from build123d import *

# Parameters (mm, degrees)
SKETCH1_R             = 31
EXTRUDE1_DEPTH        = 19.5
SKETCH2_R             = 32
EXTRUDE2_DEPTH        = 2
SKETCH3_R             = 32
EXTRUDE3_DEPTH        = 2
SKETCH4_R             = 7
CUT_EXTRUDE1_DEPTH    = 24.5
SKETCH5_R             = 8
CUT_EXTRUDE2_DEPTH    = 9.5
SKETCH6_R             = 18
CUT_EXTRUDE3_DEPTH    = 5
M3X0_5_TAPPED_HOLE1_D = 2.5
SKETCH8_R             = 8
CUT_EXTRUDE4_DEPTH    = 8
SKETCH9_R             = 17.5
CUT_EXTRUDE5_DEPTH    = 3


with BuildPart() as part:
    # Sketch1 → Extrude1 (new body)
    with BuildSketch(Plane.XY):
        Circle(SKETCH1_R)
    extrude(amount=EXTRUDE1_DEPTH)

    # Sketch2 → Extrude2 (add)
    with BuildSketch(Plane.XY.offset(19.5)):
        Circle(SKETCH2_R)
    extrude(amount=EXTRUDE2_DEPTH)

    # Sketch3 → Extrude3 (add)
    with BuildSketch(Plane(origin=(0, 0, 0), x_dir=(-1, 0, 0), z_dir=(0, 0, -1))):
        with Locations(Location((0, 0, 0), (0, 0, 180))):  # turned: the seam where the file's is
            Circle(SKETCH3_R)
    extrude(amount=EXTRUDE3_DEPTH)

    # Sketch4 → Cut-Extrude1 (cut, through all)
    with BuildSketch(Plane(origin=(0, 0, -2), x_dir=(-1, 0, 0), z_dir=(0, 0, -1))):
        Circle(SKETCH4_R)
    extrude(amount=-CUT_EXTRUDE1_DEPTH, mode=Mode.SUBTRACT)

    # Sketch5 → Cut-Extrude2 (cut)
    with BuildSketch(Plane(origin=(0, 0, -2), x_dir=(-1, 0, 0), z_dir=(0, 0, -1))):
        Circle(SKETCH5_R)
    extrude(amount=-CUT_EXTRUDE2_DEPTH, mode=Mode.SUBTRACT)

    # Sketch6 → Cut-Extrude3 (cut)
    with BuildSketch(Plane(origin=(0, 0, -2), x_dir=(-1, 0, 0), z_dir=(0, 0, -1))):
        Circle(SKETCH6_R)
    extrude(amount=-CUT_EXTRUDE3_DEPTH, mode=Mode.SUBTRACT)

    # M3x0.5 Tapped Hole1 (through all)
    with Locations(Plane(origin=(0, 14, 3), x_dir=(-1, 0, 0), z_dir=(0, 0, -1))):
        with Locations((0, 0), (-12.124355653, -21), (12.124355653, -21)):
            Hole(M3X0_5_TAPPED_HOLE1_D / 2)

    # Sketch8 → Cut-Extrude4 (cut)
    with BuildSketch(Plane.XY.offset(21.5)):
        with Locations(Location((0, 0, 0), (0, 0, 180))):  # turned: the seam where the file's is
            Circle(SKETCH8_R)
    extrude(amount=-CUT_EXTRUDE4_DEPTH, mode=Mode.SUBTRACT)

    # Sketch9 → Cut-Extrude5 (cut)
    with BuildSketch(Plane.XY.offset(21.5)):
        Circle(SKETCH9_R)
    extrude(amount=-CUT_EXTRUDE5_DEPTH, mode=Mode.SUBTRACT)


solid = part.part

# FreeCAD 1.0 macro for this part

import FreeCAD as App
import Part
import Sketcher
Q = App.Units.Quantity

doc = App.newDocument("Part")
body = doc.addObject("PartDesign::Body", "Body")

# Sketch on XY plane
sketch1 = body.newObject("Sketcher::SketchObject", "Sketch")
sketch1.AttachmentSupport = (doc.getObject("XY_Plane"), [""])
sketch1.MapMode = "FlatFace"
sketch1.addGeometry(Part.Circle(App.Vector(0, 0, 0), App.Vector(0, 0, 1), 31), False)
sketch1.addConstraint(Sketcher.Constraint("Coincident", 0, 3, -1, 1))
sketch1.addConstraint(Sketcher.Constraint("Diameter", 0, Q("62 mm")))
pad1 = body.newObject("PartDesign::Pad", "Pad")
pad1.Profile = sketch1
pad1.Length = 19.5

# Sketch on XY plane
sketch2 = body.newObject("Sketcher::SketchObject", "Sketch001")
sketch2.AttachmentSupport = (doc.getObject("XY_Plane"), [""])
sketch2.MapMode = "FlatFace"
sketch2.AttachmentOffset = App.Placement(App.Vector(0, 0, 19.5), App.Rotation())
sketch2.addGeometry(Part.Circle(App.Vector(0, 0, 0), App.Vector(0, 0, 1), 32), False)
sketch2.addConstraint(Sketcher.Constraint("Coincident", 0, 3, -1, 1))
sketch2.addConstraint(Sketcher.Constraint("Diameter", 0, Q("64 mm")))
pad2 = body.newObject("PartDesign::Pad", "Pad001")
pad2.Profile = sketch2
pad2.Length = 2

# Sketch on XY plane
sketch3 = body.newObject("Sketcher::SketchObject", "Sketch002")
sketch3.AttachmentSupport = (doc.getObject("XY_Plane"), [""])
sketch3.MapMode = "FlatFace"
sketch3.addGeometry(Part.Circle(App.Vector(0, 0, 0), App.Vector(0, 0, 1), 32), False)
sketch3.addConstraint(Sketcher.Constraint("Coincident", 0, 3, -1, 1))
sketch3.addConstraint(Sketcher.Constraint("Diameter", 0, Q("64 mm")))
pad3 = body.newObject("PartDesign::Pad", "Pad002")
pad3.Profile = sketch3
pad3.Length = 2
pad3.Reversed = True

# Sketch on XY plane
sketch4 = body.newObject("Sketcher::SketchObject", "Sketch003")
sketch4.AttachmentSupport = (doc.getObject("XY_Plane"), [""])
sketch4.MapMode = "FlatFace"
sketch4.AttachmentOffset = App.Placement(App.Vector(0, 0, -2), App.Rotation())
sketch4.addGeometry(Part.Circle(App.Vector(0, 0, 0), App.Vector(0, 0, 1), 7), False)
sketch4.addConstraint(Sketcher.Constraint("Coincident", 0, 3, -1, 1))
sketch4.addConstraint(Sketcher.Constraint("Diameter", 0, Q("14 mm")))
pocket1 = body.newObject("PartDesign::Pocket", "Pocket")
pocket1.Profile = sketch4
pocket1.Type = "ThroughAll"
pocket1.Reversed = True

# Sketch on XY plane
sketch5 = body.newObject("Sketcher::SketchObject", "Sketch004")
sketch5.AttachmentSupport = (doc.getObject("XY_Plane"), [""])
sketch5.MapMode = "FlatFace"
sketch5.AttachmentOffset = App.Placement(App.Vector(0, 0, -2), App.Rotation())
sketch5.addGeometry(Part.Circle(App.Vector(0, 0, 0), App.Vector(0, 0, 1), 8), False)
sketch5.addConstraint(Sketcher.Constraint("Coincident", 0, 3, -1, 1))
sketch5.addConstraint(Sketcher.Constraint("Diameter", 0, Q("16 mm")))
pocket2 = body.newObject("PartDesign::Pocket", "Pocket001")
pocket2.Profile = sketch5
pocket2.Length = 9.5
pocket2.Reversed = True

# Sketch on XY plane
sketch6 = body.newObject("Sketcher::SketchObject", "Sketch005")
sketch6.AttachmentSupport = (doc.getObject("XY_Plane"), [""])
sketch6.MapMode = "FlatFace"
sketch6.AttachmentOffset = App.Placement(App.Vector(0, 0, -2), App.Rotation())
sketch6.addGeometry(Part.Circle(App.Vector(0, 0, 0), App.Vector(0, 0, 1), 18), False)
sketch6.addConstraint(Sketcher.Constraint("Coincident", 0, 3, -1, 1))
sketch6.addConstraint(Sketcher.Constraint("Diameter", 0, Q("36 mm")))
pocket3 = body.newObject("PartDesign::Pocket", "Pocket002")
pocket3.Profile = sketch6
pocket3.Length = 5
pocket3.Reversed = True

# Sketch on XY plane
sketch7 = body.newObject("Sketcher::SketchObject", "Sketch006")
sketch7.AttachmentSupport = (doc.getObject("XY_Plane"), [""])
sketch7.MapMode = "FlatFace"
sketch7.AttachmentOffset = App.Placement(App.Vector(0, 0, 3), App.Rotation())
sketch7.addGeometry(Part.Circle(App.Vector(0, 14, 0), App.Vector(0, 0, 1), 1.2), False)
sketch7.addGeometry(Part.Circle(App.Vector(12.1, -7, 0), App.Vector(0, 0, 1), 1.2), False)
sketch7.addGeometry(Part.Circle(App.Vector(-12.1, -7, 0), App.Vector(0, 0, 1), 1.2), False)
sketch7.addConstraint(Sketcher.Constraint("Equal", 0, 1))
sketch7.addConstraint(Sketcher.Constraint("Equal", 1, 2))
sketch7.addConstraint(Sketcher.Constraint("Symmetric", 1, 3, 2, 3, -2))
sketch7.addConstraint(Sketcher.Constraint("PointOnObject", 0, 3, -2))
sketch7.addConstraint(Sketcher.Constraint("Diameter", 0, Q("2.5 mm")))
sketch7.addConstraint(Sketcher.Constraint("DistanceY", -1, 1, 0, 3, Q("14 mm")))
sketch7.addConstraint(Sketcher.Constraint("DistanceY", 1, 3, -1, 1, Q("7 mm")))
sketch7.addConstraint(Sketcher.Constraint("DistanceX", 2, 3, 1, 3, Q("24.248711 mm")))
doc.recompute()
hole = body.newObject("PartDesign::Hole", "Hole")
hole.Profile = sketch7
hole.ThreadType = "None"
hole.Diameter = 2.5
hole.DepthType = "ThroughAll"
hole.Reversed = True

# Sketch on XY plane
sketch8 = body.newObject("Sketcher::SketchObject", "Sketch007")
sketch8.AttachmentSupport = (doc.getObject("XY_Plane"), [""])
sketch8.MapMode = "FlatFace"
sketch8.AttachmentOffset = App.Placement(App.Vector(0, 0, 21.5), App.Rotation())
sketch8.addGeometry(Part.Circle(App.Vector(0, 0, 0), App.Vector(0, 0, 1), 8), False)
sketch8.addConstraint(Sketcher.Constraint("Coincident", 0, 3, -1, 1))
sketch8.addConstraint(Sketcher.Constraint("Diameter", 0, Q("16 mm")))
pocket4 = body.newObject("PartDesign::Pocket", "Pocket003")
pocket4.Profile = sketch8
pocket4.Length = 8

# Sketch on XY plane
sketch9 = body.newObject("Sketcher::SketchObject", "Sketch008")
sketch9.AttachmentSupport = (doc.getObject("XY_Plane"), [""])
sketch9.MapMode = "FlatFace"
sketch9.AttachmentOffset = App.Placement(App.Vector(0, 0, 21.5), App.Rotation())
sketch9.addGeometry(Part.Circle(App.Vector(0, 0, 0), App.Vector(0, 0, 1), 18), False)
sketch9.addConstraint(Sketcher.Constraint("Coincident", 0, 3, -1, 1))
sketch9.addConstraint(Sketcher.Constraint("Diameter", 0, Q("35 mm")))
pocket5 = body.newObject("PartDesign::Pocket", "Pocket004")
pocket5.Profile = sketch9
pocket5.Length = 3

doc.recompute()
